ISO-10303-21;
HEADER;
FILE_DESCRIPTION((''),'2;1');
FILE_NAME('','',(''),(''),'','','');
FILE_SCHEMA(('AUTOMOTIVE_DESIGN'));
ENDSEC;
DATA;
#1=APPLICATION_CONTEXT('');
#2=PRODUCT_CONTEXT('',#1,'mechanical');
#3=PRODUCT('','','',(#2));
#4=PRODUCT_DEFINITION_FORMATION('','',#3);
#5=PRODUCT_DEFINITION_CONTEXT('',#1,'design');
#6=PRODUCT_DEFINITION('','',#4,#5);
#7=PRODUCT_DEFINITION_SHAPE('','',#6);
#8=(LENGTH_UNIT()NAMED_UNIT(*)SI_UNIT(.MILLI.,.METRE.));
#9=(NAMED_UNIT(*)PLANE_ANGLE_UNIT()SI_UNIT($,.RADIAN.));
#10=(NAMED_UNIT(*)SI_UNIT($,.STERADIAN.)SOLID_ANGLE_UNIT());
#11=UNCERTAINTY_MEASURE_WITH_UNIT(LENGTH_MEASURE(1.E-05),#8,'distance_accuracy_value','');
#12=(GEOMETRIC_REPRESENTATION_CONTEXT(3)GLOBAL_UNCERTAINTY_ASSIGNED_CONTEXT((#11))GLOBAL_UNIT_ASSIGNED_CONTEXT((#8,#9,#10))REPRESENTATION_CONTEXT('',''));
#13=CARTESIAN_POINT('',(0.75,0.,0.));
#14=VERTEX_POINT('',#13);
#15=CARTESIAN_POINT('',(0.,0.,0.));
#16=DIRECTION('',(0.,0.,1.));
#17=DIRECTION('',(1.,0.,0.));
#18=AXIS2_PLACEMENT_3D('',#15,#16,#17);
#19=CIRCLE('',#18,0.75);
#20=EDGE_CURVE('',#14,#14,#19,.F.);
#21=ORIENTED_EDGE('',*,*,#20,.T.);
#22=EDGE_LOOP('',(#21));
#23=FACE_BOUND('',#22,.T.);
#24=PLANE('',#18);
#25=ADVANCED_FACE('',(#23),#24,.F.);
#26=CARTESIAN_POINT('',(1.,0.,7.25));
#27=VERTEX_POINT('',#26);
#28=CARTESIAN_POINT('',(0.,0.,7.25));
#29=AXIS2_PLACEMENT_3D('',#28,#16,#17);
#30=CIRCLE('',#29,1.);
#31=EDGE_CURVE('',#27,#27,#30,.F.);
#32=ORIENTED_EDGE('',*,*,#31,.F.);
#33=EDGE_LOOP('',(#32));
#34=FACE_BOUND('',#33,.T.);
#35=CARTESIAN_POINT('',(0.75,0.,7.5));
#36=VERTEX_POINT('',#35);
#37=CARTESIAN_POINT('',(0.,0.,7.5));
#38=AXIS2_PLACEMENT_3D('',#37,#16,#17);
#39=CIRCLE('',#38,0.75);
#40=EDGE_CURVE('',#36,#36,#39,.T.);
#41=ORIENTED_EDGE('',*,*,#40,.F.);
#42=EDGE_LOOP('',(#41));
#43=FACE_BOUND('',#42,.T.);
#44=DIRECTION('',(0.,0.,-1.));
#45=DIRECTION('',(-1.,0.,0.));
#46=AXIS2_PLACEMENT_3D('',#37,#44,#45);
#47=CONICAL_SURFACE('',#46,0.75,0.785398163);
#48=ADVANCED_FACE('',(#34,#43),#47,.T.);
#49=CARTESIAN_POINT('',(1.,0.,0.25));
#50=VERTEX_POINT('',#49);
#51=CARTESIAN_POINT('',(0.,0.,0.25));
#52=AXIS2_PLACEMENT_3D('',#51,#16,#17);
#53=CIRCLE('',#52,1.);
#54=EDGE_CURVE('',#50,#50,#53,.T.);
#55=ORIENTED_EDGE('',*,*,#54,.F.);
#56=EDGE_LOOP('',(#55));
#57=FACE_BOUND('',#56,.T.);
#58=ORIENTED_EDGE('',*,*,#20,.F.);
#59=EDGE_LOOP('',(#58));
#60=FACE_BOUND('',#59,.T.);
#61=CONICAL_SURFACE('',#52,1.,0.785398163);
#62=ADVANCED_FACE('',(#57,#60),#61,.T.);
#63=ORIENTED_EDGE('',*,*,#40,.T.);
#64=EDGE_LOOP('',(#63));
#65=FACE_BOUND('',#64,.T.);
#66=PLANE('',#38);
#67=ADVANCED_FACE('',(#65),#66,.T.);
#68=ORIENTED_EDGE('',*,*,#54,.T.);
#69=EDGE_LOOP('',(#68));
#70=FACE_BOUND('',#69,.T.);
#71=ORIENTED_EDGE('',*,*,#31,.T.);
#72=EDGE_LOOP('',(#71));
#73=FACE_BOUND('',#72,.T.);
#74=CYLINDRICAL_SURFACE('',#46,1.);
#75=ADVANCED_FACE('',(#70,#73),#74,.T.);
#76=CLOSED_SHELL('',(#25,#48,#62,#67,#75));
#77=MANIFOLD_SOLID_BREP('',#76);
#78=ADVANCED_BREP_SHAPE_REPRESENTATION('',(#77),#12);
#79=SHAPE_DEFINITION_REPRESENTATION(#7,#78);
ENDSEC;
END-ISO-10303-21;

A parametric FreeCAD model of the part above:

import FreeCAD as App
import Part
import Sketcher


def edges_at(feature, points):
    """Names of the edges that pass closest to the given points."""
    edges = feature.Shape.Edges
    near = lambda p: min(range(len(edges)), key=lambda i: edges[i].distToShape(Part.Vertex(*p))[0])
    return sorted({f"Edge{near(p) + 1}" for p in points})

doc = App.newDocument("Part")
params = doc.addObject("Spreadsheet::Sheet", "Params")
for row, (alias, value) in enumerate([
    ("sketch1_diameter", "2 mm"),
    ("pad1_length", "7.5 mm"),
    ("chamfer_size", "0.25 mm"),
], start=1):
    params.set(f"A{row}", alias)
    params.set(f"B{row}", "=" + value)
    params.setAlias(f"B{row}", alias)

body = doc.addObject("PartDesign::Body", "Body")

sketch1 = body.newObject("Sketcher::SketchObject", "Sketch")
sketch1.AttachmentSupport = (doc.getObject("XY_Plane"), [""])
sketch1.MapMode = "FlatFace"
sketch1.addGeometry(Part.Circle(App.Vector(0, 0, 0), App.Vector(0, 0, 1), 1), False)
sketch1.addConstraint(Sketcher.Constraint("Coincident", 0, 3, -1, 1))
sketch1.addConstraint(Sketcher.Constraint("Diameter", 0, 2.0))
sketch1.setExpression("Constraints[1]", "Params.sketch1_diameter")
pad1 = body.newObject("PartDesign::Pad", "Pad")
pad1.Profile = sketch1
pad1.setExpression("Length", "Params.pad1_length")
doc.recompute()

chamfer = body.newObject("PartDesign::Chamfer", "Chamfer")
chamfer.Base = (pad1, edges_at(pad1, [(-1, 0, 0), (-1, 0, 7.5)]))
chamfer.setExpression("Size", "Params.chamfer_size")

doc.recompute()
